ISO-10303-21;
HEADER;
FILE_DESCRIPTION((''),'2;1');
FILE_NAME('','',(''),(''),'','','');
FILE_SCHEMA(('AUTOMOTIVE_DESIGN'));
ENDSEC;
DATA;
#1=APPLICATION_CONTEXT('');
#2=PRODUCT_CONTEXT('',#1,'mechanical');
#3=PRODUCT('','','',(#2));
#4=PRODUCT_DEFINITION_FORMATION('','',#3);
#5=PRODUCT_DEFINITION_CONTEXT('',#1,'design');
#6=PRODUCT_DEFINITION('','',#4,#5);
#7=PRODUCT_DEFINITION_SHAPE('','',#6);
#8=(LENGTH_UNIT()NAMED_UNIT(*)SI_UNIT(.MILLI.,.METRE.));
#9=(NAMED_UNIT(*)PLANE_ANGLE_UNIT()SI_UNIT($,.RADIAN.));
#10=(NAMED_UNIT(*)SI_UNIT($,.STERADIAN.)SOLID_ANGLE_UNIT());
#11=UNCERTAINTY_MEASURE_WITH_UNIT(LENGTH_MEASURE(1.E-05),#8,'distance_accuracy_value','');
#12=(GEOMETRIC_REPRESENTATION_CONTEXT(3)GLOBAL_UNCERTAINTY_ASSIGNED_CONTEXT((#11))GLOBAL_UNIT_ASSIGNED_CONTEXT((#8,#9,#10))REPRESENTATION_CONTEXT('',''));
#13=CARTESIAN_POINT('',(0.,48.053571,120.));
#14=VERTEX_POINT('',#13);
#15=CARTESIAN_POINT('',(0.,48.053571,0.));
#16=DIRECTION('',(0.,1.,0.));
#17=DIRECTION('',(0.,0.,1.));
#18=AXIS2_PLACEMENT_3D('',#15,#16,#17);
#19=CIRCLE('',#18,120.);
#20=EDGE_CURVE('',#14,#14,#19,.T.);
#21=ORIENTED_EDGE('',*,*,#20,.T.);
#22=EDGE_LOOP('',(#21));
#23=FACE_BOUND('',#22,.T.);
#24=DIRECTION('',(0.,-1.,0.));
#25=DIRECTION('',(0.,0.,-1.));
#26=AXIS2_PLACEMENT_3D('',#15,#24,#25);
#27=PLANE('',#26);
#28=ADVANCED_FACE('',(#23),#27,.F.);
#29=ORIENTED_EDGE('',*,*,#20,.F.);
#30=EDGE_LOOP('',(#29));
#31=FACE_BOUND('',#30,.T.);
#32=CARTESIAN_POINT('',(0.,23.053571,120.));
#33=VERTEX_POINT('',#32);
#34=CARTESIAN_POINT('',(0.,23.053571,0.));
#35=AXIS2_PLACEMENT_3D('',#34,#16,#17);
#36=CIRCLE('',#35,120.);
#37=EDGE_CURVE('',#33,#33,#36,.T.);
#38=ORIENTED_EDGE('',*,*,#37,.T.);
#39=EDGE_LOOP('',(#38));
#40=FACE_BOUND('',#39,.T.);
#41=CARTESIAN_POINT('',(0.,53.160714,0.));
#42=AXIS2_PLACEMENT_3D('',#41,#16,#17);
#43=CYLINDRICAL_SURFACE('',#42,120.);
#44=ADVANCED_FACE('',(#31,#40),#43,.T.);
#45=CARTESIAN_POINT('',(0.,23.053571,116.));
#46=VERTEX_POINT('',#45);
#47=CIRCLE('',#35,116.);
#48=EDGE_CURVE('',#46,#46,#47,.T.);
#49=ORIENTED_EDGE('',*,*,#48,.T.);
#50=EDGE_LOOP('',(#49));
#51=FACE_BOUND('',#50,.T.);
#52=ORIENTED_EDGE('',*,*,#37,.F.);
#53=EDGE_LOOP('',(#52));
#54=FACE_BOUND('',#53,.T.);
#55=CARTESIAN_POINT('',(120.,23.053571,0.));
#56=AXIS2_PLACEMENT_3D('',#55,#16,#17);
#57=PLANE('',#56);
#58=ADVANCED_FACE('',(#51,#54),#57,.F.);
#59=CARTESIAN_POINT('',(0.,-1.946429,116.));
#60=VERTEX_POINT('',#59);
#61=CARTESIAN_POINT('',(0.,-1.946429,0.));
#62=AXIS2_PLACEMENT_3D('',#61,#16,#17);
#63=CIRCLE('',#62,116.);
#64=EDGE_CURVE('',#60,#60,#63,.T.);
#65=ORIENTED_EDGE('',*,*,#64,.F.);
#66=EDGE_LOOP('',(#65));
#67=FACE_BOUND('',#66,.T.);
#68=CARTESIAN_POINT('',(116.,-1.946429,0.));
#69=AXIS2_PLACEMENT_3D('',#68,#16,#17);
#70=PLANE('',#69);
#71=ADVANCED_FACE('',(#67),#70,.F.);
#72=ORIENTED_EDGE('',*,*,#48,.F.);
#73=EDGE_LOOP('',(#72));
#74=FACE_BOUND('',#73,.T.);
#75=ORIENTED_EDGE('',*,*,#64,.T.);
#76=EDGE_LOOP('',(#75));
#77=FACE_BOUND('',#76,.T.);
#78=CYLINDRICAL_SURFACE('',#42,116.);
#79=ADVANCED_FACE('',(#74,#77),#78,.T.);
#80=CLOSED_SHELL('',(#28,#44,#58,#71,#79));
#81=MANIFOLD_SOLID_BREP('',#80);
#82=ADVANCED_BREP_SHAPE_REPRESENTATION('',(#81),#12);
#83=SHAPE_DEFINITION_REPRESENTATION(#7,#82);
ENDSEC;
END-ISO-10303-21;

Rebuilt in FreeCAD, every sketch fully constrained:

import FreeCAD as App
import Part
import Sketcher

V = App.Vector
Q = App.Units.Quantity

doc = App.newDocument("Part")
body = doc.addObject("PartDesign::Body", "Body")

# Sketch on XY plane
sketch1 = body.newObject("Sketcher::SketchObject", "Sketch")
sketch1.AttachmentSupport = (doc.getObject("XY_Plane"), [""])
sketch1.MapMode = "FlatFace"
sketch1.addGeometry([
    Part.LineSegment(V(120, 48.1, 0), V(0, 48.1, 0)),  # 0
    Part.LineSegment(V(0, 48.1, 0), V(0, -1.9, 0)),  # 1
    Part.LineSegment(V(0, -1.9, 0), V(116, -1.9, 0)),  # 2
    Part.LineSegment(V(116, -1.9, 0), V(116, 23.1, 0)),  # 3
    Part.LineSegment(V(116, 23.1, 0), V(120, 23.1, 0)),  # 4
    Part.LineSegment(V(120, 23.1, 0), V(120, 48.1, 0)),  # 5
], False)
sketch1.addConstraint([
    Sketcher.Constraint("Coincident", 0, 2, 1, 1),
    Sketcher.Constraint("Coincident", 1, 2, 2, 1),
    Sketcher.Constraint("Coincident", 2, 2, 3, 1),
    Sketcher.Constraint("Coincident", 3, 2, 4, 1),
    Sketcher.Constraint("Coincident", 4, 2, 5, 1),
    Sketcher.Constraint("Coincident", 5, 2, 0, 1),
    Sketcher.Constraint("Horizontal", 0),
    Sketcher.Constraint("Vertical", 1),
    Sketcher.Constraint("Horizontal", 2),
    Sketcher.Constraint("Vertical", 3),
    Sketcher.Constraint("Horizontal", 4),
    Sketcher.Constraint("Vertical", 5),
    Sketcher.Constraint("PointOnObject", 0, 2, -2),
    Sketcher.Constraint("Equal", 3, 5),
    Sketcher.Constraint("DistanceX", 0, 2, 0, 1, Q("120 mm")),
    Sketcher.Constraint("DistanceX", 2, 1, 2, 2, Q("116 mm")),
    Sketcher.Constraint("DistanceY", 1, 2, 1, 1, Q("50 mm")),
    Sketcher.Constraint("DistanceY", -1, 1, 0, 2, Q("48.053571 mm")),
])
revolution = body.newObject("PartDesign::Revolution", "Revolution")
revolution.Profile = sketch1
revolution.ReferenceAxis = (sketch1, ["V_Axis"])
revolution.Angle = 360

doc.recompute()
